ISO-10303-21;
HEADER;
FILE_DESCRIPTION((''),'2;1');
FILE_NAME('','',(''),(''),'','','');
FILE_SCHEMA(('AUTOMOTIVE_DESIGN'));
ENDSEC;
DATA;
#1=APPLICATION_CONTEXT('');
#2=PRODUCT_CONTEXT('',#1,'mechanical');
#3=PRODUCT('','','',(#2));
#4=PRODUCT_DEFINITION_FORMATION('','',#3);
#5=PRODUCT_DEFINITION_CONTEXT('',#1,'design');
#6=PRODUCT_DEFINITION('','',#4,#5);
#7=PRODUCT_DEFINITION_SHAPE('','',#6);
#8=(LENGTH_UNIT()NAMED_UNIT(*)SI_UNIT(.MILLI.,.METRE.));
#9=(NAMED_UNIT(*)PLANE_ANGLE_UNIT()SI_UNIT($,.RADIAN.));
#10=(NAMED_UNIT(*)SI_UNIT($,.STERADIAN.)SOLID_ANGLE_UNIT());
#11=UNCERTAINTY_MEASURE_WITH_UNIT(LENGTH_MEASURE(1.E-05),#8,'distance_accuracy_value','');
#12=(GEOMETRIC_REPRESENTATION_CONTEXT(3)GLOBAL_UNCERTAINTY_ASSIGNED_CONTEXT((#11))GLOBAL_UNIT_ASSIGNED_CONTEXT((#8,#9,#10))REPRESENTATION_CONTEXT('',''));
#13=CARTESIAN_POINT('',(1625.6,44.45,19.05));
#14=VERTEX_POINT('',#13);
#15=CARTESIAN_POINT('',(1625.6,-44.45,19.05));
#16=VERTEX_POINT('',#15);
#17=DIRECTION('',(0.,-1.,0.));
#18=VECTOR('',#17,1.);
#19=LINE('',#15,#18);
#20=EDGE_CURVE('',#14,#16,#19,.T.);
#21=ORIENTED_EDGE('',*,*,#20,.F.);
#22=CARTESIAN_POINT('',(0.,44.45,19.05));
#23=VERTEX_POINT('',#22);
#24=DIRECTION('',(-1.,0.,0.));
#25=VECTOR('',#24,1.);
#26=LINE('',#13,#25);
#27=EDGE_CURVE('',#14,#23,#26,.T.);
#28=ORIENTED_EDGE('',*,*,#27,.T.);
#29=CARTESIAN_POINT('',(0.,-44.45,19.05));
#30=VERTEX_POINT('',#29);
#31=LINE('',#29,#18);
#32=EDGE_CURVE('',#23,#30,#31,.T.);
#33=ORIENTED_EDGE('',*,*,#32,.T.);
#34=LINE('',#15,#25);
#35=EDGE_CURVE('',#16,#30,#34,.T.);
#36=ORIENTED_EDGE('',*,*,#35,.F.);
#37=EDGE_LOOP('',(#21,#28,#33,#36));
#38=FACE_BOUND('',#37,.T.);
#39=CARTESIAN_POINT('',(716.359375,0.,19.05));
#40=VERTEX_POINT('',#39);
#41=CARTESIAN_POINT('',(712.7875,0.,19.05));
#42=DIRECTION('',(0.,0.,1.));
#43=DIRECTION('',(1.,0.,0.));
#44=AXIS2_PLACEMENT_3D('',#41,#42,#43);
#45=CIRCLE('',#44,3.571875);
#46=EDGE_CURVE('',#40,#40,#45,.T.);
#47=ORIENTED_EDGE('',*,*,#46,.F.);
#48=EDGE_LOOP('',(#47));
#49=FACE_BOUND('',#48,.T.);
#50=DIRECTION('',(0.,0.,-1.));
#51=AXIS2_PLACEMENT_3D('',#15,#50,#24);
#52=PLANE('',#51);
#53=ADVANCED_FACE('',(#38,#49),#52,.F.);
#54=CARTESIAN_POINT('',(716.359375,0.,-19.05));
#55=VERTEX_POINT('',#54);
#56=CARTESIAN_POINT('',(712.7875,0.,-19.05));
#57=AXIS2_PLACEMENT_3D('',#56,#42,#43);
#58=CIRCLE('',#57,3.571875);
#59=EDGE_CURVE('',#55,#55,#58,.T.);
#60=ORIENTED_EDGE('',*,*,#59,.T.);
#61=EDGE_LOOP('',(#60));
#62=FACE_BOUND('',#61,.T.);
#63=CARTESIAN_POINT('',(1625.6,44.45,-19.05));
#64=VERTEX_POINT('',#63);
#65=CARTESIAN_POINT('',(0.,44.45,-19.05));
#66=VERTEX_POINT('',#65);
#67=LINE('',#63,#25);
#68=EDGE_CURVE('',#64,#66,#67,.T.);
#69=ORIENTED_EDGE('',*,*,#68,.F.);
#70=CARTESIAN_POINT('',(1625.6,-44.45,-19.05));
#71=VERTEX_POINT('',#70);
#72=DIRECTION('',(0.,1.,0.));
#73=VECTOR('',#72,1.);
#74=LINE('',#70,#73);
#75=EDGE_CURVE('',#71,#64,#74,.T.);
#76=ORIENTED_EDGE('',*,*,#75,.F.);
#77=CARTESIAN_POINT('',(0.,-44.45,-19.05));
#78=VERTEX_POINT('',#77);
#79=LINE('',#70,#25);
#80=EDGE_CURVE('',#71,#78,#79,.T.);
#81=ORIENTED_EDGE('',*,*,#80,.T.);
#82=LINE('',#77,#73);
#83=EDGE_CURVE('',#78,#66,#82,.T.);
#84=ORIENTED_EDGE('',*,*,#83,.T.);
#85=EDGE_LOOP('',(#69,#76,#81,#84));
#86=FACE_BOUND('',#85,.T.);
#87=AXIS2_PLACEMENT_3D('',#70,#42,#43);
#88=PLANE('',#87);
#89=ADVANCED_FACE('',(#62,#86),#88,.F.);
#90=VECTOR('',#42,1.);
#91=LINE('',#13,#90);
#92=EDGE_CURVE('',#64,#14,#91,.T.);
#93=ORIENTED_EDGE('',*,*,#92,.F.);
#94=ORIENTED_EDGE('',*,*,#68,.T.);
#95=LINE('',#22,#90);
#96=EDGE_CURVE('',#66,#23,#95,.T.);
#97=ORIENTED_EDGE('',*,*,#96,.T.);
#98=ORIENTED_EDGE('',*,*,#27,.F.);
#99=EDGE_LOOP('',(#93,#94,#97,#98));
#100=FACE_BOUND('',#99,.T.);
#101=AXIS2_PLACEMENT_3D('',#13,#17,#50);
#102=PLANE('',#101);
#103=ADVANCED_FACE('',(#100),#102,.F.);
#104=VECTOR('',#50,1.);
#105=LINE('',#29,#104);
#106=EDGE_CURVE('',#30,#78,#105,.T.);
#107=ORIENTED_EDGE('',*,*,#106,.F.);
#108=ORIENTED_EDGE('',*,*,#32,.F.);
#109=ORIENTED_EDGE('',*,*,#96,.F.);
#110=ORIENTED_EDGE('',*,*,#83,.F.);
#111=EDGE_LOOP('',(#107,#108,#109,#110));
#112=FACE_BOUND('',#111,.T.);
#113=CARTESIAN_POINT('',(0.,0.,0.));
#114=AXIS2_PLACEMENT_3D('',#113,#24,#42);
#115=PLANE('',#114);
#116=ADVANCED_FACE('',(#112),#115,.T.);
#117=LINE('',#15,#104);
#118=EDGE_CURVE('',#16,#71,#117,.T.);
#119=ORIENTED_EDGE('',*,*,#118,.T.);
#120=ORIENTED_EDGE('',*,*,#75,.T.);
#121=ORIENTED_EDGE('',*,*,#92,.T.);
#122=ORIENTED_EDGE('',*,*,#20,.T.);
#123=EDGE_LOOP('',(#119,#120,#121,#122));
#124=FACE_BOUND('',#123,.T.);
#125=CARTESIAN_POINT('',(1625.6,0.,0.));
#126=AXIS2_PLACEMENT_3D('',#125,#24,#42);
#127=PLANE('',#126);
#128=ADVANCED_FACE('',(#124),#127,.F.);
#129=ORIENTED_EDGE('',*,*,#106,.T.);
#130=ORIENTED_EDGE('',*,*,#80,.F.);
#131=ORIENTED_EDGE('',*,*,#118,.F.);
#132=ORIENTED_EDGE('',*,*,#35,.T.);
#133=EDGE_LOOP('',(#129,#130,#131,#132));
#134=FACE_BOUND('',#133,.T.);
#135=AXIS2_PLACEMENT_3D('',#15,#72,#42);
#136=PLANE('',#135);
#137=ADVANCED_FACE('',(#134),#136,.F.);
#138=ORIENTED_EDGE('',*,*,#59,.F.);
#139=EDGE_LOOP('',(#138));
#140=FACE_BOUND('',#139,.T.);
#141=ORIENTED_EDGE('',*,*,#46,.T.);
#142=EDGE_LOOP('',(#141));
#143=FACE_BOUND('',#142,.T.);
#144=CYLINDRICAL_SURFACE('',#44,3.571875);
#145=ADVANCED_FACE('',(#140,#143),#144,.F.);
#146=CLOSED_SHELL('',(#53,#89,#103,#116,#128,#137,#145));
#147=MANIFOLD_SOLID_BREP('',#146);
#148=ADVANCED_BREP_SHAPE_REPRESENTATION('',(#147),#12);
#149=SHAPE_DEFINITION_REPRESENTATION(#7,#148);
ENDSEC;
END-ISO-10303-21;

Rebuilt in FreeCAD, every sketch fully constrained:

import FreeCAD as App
import Part
import Sketcher
from FreeCAD import Vector
Q = App.Units.Quantity


def add_polygon(sketch, points):
    """Adds a closed chain of lines whose ends are joined by coincident constraints."""
    first, n = sketch.GeometryCount, len(points)
    for a, b in zip(points, points[1:] + points[:1]):
        sketch.addGeometry(Part.LineSegment(App.Vector(*a, 0), App.Vector(*b, 0)), False)
    for i in range(n):
        sketch.addConstraint(Sketcher.Constraint("Coincident", first + i, 2, first + (i + 1) % n, 1))

doc = App.newDocument("Part")
body = doc.addObject("PartDesign::Body", "Body")

sketch1 = body.newObject("Sketcher::SketchObject", "Sketch")
sketch1.AttachmentSupport = (doc.getObject("YZ_Plane"), [""])
sketch1.MapMode = "FlatFace"
add_polygon(sketch1, [(44, 19), (-44, 19), (-44, -19), (44, -19)])
sketch1.addConstraint([
    Sketcher.Constraint("Horizontal", 0),
    Sketcher.Constraint("Vertical", 1),
    Sketcher.Constraint("Horizontal", 2),
    Sketcher.Constraint("Vertical", 3),
    Sketcher.Constraint("Symmetric", 0, 2, 2, 2, -1, 1),
    Sketcher.Constraint("DistanceX", 0, 2, 0, 1, Q("3.5 in")),
    Sketcher.Constraint("DistanceY", 1, 2, 1, 1, Q("1.5 in")),
])
pad1 = body.newObject("PartDesign::Pad", "Pad")
pad1.Profile = sketch1
pad1.Length = Q("64 in")

sketch2 = body.newObject("Sketcher::SketchObject", "Sketch001")
sketch2.AttachmentSupport = (doc.getObject("XY_Plane"), [""])
sketch2.MapMode = "FlatFace"
sketch2.AttachmentOffset = App.Placement(Vector(0, 0, 0.75 * 25.4), App.Rotation())
sketch2.addGeometry(Part.Circle(Vector(712.8, 0, 0), Vector(0, 0, 1), 3.6), False)
sketch2.addConstraint([
    Sketcher.Constraint("PointOnObject", 0, 3, -1),
    Sketcher.Constraint("Diameter", 0, Q("0.28125 in")),
    Sketcher.Constraint("DistanceX", -1, 1, 0, 3, Q("28.0625 in")),
])
doc.recompute()
hole = body.newObject("PartDesign::Hole", "Hole")
hole.Profile = sketch2
hole.ThreadType = "None"
hole.Diameter = Q("0.28125 in")
hole.DepthType = "ThroughAll"

doc.recompute()
